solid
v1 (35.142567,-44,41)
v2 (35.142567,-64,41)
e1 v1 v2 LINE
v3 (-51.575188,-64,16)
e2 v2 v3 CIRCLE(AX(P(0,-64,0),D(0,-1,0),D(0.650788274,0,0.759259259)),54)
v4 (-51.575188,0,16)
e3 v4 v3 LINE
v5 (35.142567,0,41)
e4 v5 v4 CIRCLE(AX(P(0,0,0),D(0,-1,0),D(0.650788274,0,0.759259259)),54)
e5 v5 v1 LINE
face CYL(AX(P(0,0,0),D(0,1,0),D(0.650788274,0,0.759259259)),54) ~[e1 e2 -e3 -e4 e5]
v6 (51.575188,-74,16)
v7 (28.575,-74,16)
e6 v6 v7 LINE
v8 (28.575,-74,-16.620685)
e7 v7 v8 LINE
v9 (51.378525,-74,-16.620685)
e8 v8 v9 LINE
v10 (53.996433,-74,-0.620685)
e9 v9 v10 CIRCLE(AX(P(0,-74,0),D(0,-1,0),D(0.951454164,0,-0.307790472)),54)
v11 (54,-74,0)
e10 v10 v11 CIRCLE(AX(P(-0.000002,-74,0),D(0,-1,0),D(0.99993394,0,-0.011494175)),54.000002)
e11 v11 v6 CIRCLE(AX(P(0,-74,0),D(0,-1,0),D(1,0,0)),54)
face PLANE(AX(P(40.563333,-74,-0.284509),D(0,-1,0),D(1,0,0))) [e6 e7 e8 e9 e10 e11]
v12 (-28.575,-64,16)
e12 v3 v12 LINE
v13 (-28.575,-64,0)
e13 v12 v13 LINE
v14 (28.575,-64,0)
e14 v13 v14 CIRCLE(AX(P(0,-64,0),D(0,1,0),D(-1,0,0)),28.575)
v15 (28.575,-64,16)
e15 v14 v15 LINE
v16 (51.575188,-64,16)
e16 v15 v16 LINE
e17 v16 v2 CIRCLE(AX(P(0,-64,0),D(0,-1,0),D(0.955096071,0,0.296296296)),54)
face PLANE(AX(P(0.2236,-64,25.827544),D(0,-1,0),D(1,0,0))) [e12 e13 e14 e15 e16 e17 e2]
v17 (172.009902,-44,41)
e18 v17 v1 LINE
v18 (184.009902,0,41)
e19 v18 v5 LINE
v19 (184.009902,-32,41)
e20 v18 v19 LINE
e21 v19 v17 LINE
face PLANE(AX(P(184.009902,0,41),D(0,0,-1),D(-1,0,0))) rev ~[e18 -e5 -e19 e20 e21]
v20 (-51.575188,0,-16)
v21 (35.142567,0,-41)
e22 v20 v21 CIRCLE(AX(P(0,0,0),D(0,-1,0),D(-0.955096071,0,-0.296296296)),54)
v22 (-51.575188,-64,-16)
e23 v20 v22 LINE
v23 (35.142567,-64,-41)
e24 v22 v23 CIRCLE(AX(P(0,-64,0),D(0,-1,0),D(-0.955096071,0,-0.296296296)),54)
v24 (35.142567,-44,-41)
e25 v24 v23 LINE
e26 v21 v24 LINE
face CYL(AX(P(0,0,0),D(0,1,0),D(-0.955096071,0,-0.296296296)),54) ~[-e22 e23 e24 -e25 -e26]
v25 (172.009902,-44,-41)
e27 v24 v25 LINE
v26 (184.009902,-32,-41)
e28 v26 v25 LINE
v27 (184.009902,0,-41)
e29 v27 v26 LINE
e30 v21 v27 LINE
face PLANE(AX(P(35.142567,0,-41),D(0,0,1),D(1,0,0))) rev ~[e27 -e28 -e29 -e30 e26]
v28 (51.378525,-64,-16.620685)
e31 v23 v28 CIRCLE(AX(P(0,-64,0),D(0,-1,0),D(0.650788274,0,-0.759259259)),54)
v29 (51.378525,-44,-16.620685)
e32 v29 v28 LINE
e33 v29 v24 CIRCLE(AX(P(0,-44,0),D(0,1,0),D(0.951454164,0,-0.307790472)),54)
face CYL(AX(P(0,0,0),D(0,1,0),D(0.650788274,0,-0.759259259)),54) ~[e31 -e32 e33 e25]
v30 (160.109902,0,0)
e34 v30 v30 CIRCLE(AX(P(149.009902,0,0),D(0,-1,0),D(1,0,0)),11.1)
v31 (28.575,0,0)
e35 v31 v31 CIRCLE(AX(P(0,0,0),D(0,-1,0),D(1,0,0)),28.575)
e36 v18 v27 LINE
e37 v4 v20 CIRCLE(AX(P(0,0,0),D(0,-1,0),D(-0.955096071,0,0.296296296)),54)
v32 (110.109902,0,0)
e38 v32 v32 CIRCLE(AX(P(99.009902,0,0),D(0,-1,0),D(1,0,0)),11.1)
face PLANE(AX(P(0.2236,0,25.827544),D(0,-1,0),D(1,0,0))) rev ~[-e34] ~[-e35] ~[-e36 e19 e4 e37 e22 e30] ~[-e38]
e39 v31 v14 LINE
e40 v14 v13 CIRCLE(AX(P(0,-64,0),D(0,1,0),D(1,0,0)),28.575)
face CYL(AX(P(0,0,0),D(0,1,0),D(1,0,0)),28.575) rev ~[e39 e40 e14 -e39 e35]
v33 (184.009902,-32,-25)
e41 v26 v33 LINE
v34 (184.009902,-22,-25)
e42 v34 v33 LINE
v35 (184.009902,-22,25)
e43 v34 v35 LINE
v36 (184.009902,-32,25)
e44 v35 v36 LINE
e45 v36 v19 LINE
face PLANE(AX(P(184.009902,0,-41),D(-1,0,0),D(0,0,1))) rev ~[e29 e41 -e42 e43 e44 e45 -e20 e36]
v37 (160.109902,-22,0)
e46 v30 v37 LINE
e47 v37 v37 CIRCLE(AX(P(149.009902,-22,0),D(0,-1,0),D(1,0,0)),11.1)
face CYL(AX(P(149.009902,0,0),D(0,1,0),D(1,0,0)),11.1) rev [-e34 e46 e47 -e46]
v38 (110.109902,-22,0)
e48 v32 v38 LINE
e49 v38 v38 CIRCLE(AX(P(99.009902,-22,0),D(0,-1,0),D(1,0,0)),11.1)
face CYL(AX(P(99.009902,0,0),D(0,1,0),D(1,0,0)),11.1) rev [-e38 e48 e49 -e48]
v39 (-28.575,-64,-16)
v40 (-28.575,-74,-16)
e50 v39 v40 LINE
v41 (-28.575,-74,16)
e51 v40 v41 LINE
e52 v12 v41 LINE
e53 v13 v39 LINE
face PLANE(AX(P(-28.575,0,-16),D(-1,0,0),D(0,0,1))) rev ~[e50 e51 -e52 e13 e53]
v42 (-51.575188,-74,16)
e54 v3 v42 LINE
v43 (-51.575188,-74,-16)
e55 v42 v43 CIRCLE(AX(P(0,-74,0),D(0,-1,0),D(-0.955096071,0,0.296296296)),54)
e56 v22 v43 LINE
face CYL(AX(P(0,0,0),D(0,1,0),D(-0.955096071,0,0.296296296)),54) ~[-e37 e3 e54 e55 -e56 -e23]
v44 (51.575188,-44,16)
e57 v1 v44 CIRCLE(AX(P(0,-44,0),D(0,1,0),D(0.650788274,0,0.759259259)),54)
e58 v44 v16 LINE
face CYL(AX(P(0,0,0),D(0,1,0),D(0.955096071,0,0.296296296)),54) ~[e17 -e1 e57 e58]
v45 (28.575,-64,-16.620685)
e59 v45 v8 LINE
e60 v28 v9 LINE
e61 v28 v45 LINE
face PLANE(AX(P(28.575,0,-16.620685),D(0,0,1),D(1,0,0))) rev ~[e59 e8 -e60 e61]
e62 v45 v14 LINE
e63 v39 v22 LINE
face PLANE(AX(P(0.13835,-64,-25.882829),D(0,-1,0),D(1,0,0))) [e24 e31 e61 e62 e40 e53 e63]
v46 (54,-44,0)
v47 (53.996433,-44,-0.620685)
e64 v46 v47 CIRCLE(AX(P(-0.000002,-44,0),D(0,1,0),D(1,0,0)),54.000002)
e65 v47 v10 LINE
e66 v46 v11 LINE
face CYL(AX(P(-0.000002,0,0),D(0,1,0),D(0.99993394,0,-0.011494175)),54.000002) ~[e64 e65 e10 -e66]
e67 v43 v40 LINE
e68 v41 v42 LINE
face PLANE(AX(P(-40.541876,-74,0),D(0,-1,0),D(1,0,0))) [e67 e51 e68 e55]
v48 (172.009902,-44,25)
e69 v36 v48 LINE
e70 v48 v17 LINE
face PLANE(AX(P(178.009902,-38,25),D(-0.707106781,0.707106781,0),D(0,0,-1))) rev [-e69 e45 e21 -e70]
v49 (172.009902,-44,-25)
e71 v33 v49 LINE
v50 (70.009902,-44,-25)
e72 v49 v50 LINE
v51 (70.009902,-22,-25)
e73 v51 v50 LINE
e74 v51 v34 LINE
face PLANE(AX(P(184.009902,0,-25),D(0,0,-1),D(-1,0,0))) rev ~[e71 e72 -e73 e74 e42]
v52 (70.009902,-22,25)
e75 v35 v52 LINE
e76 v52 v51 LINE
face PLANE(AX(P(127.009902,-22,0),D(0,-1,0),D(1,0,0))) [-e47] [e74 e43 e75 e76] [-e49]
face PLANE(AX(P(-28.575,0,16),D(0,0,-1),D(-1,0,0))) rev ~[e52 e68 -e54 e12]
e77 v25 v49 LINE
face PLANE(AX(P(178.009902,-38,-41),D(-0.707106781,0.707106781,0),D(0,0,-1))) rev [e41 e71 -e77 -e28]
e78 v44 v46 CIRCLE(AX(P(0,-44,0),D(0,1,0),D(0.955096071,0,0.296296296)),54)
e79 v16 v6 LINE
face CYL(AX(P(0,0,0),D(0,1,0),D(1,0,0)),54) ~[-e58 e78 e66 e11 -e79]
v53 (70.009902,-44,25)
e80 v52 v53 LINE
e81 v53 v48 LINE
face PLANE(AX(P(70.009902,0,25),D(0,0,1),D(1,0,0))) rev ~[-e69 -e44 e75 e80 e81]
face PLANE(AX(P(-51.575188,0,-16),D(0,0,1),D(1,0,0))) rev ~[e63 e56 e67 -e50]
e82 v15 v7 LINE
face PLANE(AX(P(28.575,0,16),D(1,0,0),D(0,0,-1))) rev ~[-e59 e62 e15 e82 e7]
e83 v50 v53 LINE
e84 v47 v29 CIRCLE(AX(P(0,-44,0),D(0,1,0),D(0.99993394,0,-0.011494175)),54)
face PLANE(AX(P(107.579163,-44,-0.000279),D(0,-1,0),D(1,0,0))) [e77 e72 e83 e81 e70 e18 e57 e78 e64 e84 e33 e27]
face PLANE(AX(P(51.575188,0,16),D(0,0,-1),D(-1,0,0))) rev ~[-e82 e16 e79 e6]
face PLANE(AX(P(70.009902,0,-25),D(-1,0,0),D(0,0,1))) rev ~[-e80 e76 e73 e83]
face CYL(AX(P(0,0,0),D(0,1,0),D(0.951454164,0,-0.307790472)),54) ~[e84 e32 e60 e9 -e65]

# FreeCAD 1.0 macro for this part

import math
import FreeCAD as App
import Part
import Sketcher
from FreeCAD import Vector


def edges_at(feature, points):
    """Names of the edges that pass closest to the given points."""
    edges = feature.Shape.Edges
    near = lambda p: min(range(len(edges)), key=lambda i: edges[i].distToShape(Part.Vertex(*p))[0])
    return sorted({f"Edge{near(p) + 1}" for p in points})

doc = App.newDocument("Part")
body = doc.addObject("PartDesign::Body", "Body")

# Sketch on XZ plane
sketch1 = body.newObject("Sketcher::SketchObject", "Sketch")
sketch1.AttachmentSupport = (doc.getObject("XZ_Plane"), [""])
sketch1.MapMode = "FlatFace"
sketch1.addGeometry([
    Part.LineSegment(Vector(184, -25, 0), Vector(184, 25, 0)),  # 0
    Part.LineSegment(Vector(184, 25, 0), Vector(70, 25, 0)),  # 1
    Part.LineSegment(Vector(70, 25, 0), Vector(70, -25, 0)),  # 2
    Part.LineSegment(Vector(70, -25, 0), Vector(184, -25, 0)),  # 3
    Part.Circle(Vector(99, 0, 0), Vector(0, 0, 1), 11),  # 4
    Part.Circle(Vector(149, 0, 0), Vector(0, 0, 1), 11),  # 5
], False)
sketch1.addConstraint([
    Sketcher.Constraint("Coincident", 0, 2, 1, 1),
    Sketcher.Constraint("Coincident", 1, 2, 2, 1),
    Sketcher.Constraint("Coincident", 2, 2, 3, 1),
    Sketcher.Constraint("Coincident", 3, 2, 0, 1),
    Sketcher.Constraint("Vertical", 0),
    Sketcher.Constraint("Horizontal", 1),
    Sketcher.Constraint("Vertical", 2),
    Sketcher.Constraint("Horizontal", 3),
    Sketcher.Constraint("Equal", 4, 5),
    Sketcher.Constraint("PointOnObject", 4, 3, -1),
    Sketcher.Constraint("PointOnObject", 5, 3, -1),
    Sketcher.Constraint("Diameter", 4, 22.2),
    Sketcher.Constraint("DistanceX", 1, 2, 1, 1, 114.0),
    Sketcher.Constraint("DistanceY", 0, 1, 0, 2, 50.0),
    Sketcher.Constraint("DistanceY", -1, 1, 0, 2, 25.0),
    Sketcher.Constraint("DistanceX", 4, 3, 5, 3, 50.0),
    Sketcher.Constraint("DistanceX", 5, 3, 0, 2, 35.0),
    Sketcher.Constraint("DistanceX", -1, 1, 4, 3, 99.009902),
])
pad1 = body.newObject("PartDesign::Pad", "Pad")
pad1.Profile = sketch1
pad1.Length = 22

# Sketch on XZ plane
sketch2 = body.newObject("Sketcher::SketchObject", "Sketch001")
sketch2.AttachmentSupport = (doc.getObject("XZ_Plane"), [""])
sketch2.MapMode = "FlatFace"
sketch2.addGeometry([
    Part.ArcOfCircle(Part.Circle(Vector(0, 0, 0), Vector(0, 0, 1), 54), math.radians(0), math.radians(17.24)),  # 0
    Part.ArcOfCircle(Part.Circle(Vector(0, 0, 0), Vector(0, 0, 1), 54), math.radians(-0.66), math.radians(0)),  # 1
    Part.ArcOfCircle(Part.Circle(Vector(0, 0, 0), Vector(0, 0, 1), 54), math.radians(-17.93), math.radians(-0.66)),  # 2
    Part.ArcOfCircle(Part.Circle(Vector(0, 0, 0), Vector(0, 0, 1), 54), math.radians(-49), math.radians(-18)),  # 3
    Part.LineSegment(Vector(35.1, -41, 0), Vector(184, -41, 0)),  # 4
    Part.LineSegment(Vector(184, -41, 0), Vector(184, -25, 0)),  # 5
    Part.LineSegment(Vector(184, -25, 0), Vector(70, -25, 0)),  # 6
    Part.LineSegment(Vector(70, -25, 0), Vector(70, 25, 0)),  # 7
    Part.LineSegment(Vector(70, 25, 0), Vector(184, 25, 0)),  # 8
    Part.LineSegment(Vector(184, 25, 0), Vector(184, 41, 0)),  # 9
    Part.LineSegment(Vector(184, 41, 0), Vector(35.1, 41, 0)),  # 10
    Part.ArcOfCircle(Part.Circle(Vector(0, 0, 0), Vector(0, 0, 1), 54), math.radians(17), math.radians(49)),  # 11
], False)
sketch2.addConstraint([
    Sketcher.Constraint("Tangent", 0, 1, 1, 2),
    Sketcher.Constraint("Tangent", 1, 1, 2, 2),
    Sketcher.Constraint("Tangent", 2, 1, 3, 2),
    Sketcher.Constraint("Coincident", 3, 1, 4, 1),
    Sketcher.Constraint("Coincident", 4, 2, 5, 1),
    Sketcher.Constraint("Coincident", 5, 2, 6, 1),
    Sketcher.Constraint("Coincident", 6, 2, 7, 1),
    Sketcher.Constraint("Coincident", 7, 2, 8, 1),
    Sketcher.Constraint("Coincident", 8, 2, 9, 1),
    Sketcher.Constraint("Coincident", 9, 2, 10, 1),
    Sketcher.Constraint("Coincident", 10, 2, 11, 2),
    Sketcher.Constraint("Tangent", 11, 1, 0, 2),
    Sketcher.Constraint("Horizontal", 4),
    Sketcher.Constraint("Vertical", 5),
    Sketcher.Constraint("Horizontal", 6),
    Sketcher.Constraint("Vertical", 7),
    Sketcher.Constraint("Horizontal", 8),
    Sketcher.Constraint("Vertical", 9),
    Sketcher.Constraint("Horizontal", 10),
    Sketcher.Constraint("Coincident", 0, 3, -1, 1),
    Sketcher.Constraint("Coincident", 2, 3, -1, 1),
    Sketcher.Constraint("Equal", 2, 3),
    Sketcher.Constraint("Equal", 3, 11),
    Sketcher.Constraint("Symmetric", 5, 2, 8, 2, -1),
    Sketcher.Constraint("PointOnObject", 0, 1, -1),
    Sketcher.Constraint("Vertical", 3, 1, 10, 2),
    Sketcher.Constraint("Radius", 0, 54.0),
    Sketcher.Constraint("DistanceX", 6, 2, 6, 1, 114.0),
    Sketcher.Constraint("DistanceY", 5, 1, 5, 2, 16.0),
    Sketcher.Constraint("DistanceY", 7, 1, 7, 2, 50.0),
    Sketcher.Constraint("DistanceY", -1, 1, 11, 1, 16.0),
    Sketcher.Constraint("DistanceY", 2, 1, 1, 1, 16.0),
    Sketcher.Constraint("DistanceX", 4, 1, 4, 2, 148.867335),
    Sketcher.Constraint("DistanceX", 3, 1, 2, 1, 16.235958),
])
pad2 = body.newObject("PartDesign::Pad", "Pad001")
pad2.Profile = sketch2
pad2.Length = 44

# Sketch on XZ plane
sketch3 = body.newObject("Sketcher::SketchObject", "Sketch002")
sketch3.AttachmentSupport = (doc.getObject("XZ_Plane"), [""])
sketch3.MapMode = "FlatFace"
sketch3.addGeometry([
    Part.LineSegment(Vector(29, 16, 0), Vector(52, 16, 0)),  # 0
    Part.ArcOfCircle(Part.Circle(Vector(0, 0, 0), Vector(0, 0, 1), 54), math.radians(17), math.radians(49)),  # 1
    Part.ArcOfCircle(Part.Circle(Vector(0, 0, 0), Vector(0, 0, 1), 54), math.radians(49), math.radians(163)),  # 2
    Part.LineSegment(Vector(-52, 16, 0), Vector(-29, 16, 0)),  # 3
    Part.LineSegment(Vector(-29, 16, 0), Vector(-29, 0, 0)),  # 4
    Part.ArcOfCircle(Part.Circle(Vector(0, 0, 0), Vector(0, 0, 1), 29), math.radians(0), math.radians(180)),  # 5
    Part.LineSegment(Vector(29, 0, 0), Vector(29, 16, 0)),  # 6
    Part.ArcOfCircle(Part.Circle(Vector(0, 0, 0), Vector(0, 0, 1), 54), math.radians(-49), math.radians(-18)),  # 7
    Part.LineSegment(Vector(51, -17, 0), Vector(29, -17, 0)),  # 8
    Part.LineSegment(Vector(29, -17, 0), Vector(29, 0, 0)),  # 9
    Part.ArcOfCircle(Part.Circle(Vector(0, 0, 0), Vector(0, 0, 1), 29), math.radians(180), math.radians(360)),  # 10
    Part.LineSegment(Vector(-29, 0, 0), Vector(-29, -16, 0)),  # 11
    Part.LineSegment(Vector(-29, -16, 0), Vector(-52, -16, 0)),  # 12
    Part.ArcOfCircle(Part.Circle(Vector(0, 0, 0), Vector(0, 0, 1), 54), math.radians(-163), math.radians(-49)),  # 13
], False)
sketch3.addConstraint([
    Sketcher.Constraint("Coincident", 0, 2, 1, 1),
    Sketcher.Constraint("Tangent", 1, 2, 2, 1),
    Sketcher.Constraint("Coincident", 2, 2, 3, 1),
    Sketcher.Constraint("Coincident", 3, 2, 4, 1),
    Sketcher.Constraint("Tangent", 4, 2, 5, 2),
    Sketcher.Constraint("Tangent", 5, 1, 6, 1),
    Sketcher.Constraint("Coincident", 6, 2, 0, 1),
    Sketcher.Constraint("Coincident", 7, 2, 8, 1),
    Sketcher.Constraint("Coincident", 8, 2, 9, 1),
    Sketcher.Constraint("Tangent", 9, 2, 10, 2),
    Sketcher.Constraint("Tangent", 10, 1, 11, 1),
    Sketcher.Constraint("Coincident", 11, 2, 12, 1),
    Sketcher.Constraint("Coincident", 12, 2, 13, 1),
    Sketcher.Constraint("Tangent", 13, 2, 7, 1),
    Sketcher.Constraint("Horizontal", 0),
    Sketcher.Constraint("Horizontal", 3),
    Sketcher.Constraint("Vertical", 4),
    Sketcher.Constraint("Vertical", 6),
    Sketcher.Constraint("Horizontal", 8),
    Sketcher.Constraint("Vertical", 9),
    Sketcher.Constraint("Vertical", 11),
    Sketcher.Constraint("Horizontal", 12),
    Sketcher.Constraint("Coincident", 1, 3, -1, 1),
    Sketcher.Constraint("Coincident", 5, 3, -1, 1),
    Sketcher.Constraint("Coincident", 7, 3, -1, 1),
    Sketcher.Constraint("Coincident", 10, 3, -1, 1),
    Sketcher.Constraint("Equal", 1, 2),
    Sketcher.Constraint("Equal", 2, 7),
    Sketcher.Constraint("Equal", 5, 10),
    Sketcher.Constraint("Equal", 7, 13),
    Sketcher.Constraint("Horizontal", 0, 2, 2, 2),
    Sketcher.Constraint("Vertical", 2, 2, 12, 2),
    Sketcher.Constraint("Vertical", 1, 2, 13, 2),
    Sketcher.Constraint("Radius", 1, 54.0),
    Sketcher.Constraint("DistanceY", 4, 2, 4, 1, 16.0),
    Sketcher.Constraint("DistanceY", -1, 1, 1, 2, 41.0),
    Sketcher.Constraint("Radius", 5, 28.575),
    Sketcher.Constraint("DistanceX", 8, 2, 8, 1, 22.803525),
])
pad3 = body.newObject("PartDesign::Pad", "Pad002")
pad3.Profile = sketch3
pad3.Length = 64

# Sketch on XZ plane
sketch4 = body.newObject("Sketcher::SketchObject", "Sketch003")
sketch4.AttachmentSupport = (doc.getObject("XZ_Plane"), [""])
sketch4.MapMode = "FlatFace"
sketch4.addGeometry([
    Part.ArcOfCircle(Part.Circle(Vector(0, 0, 0), Vector(0, 0, 1), 54), math.radians(-0.66), math.radians(0)),  # 0
    Part.ArcOfCircle(Part.Circle(Vector(0, 0, 0), Vector(0, 0, 1), 54), math.radians(0), math.radians(17.24)),  # 1
    Part.LineSegment(Vector(51.6, 16, 0), Vector(28.6, 16, 0)),  # 2
    Part.LineSegment(Vector(28.6, 16, 0), Vector(28.6, -16.6, 0)),  # 3
    Part.LineSegment(Vector(28.6, -16.6, 0), Vector(51.4, -16.6, 0)),  # 4
    Part.ArcOfCircle(Part.Circle(Vector(0, 0, 0), Vector(0, 0, 1), 54), math.radians(-17.93), math.radians(-0.66)),  # 5
    Part.LineSegment(Vector(-28.6, 16, 0), Vector(-51.6, 16, 0)),  # 6
    Part.ArcOfCircle(Part.Circle(Vector(0, 0, 0), Vector(0, 0, 1), 54), math.radians(163), math.radians(197)),  # 7
    Part.LineSegment(Vector(-51.6, -16, 0), Vector(-28.6, -16, 0)),  # 8
    Part.LineSegment(Vector(-28.6, -16, 0), Vector(-28.6, 16, 0)),  # 9
], False)
sketch4.addConstraint([
    Sketcher.Constraint("Tangent", 0, 2, 1, 1),
    Sketcher.Constraint("Coincident", 1, 2, 2, 1),
    Sketcher.Constraint("Coincident", 2, 2, 3, 1),
    Sketcher.Constraint("Coincident", 3, 2, 4, 1),
    Sketcher.Constraint("Coincident", 4, 2, 5, 1),
    Sketcher.Constraint("Tangent", 5, 2, 0, 1),
    Sketcher.Constraint("Coincident", 6, 2, 7, 1),
    Sketcher.Constraint("Coincident", 7, 2, 8, 1),
    Sketcher.Constraint("Coincident", 8, 2, 9, 1),
    Sketcher.Constraint("Coincident", 9, 2, 6, 1),
    Sketcher.Constraint("Horizontal", 2),
    Sketcher.Constraint("Vertical", 3),
    Sketcher.Constraint("Horizontal", 4),
    Sketcher.Constraint("Horizontal", 6),
    Sketcher.Constraint("Horizontal", 8),
    Sketcher.Constraint("Vertical", 9),
    Sketcher.Constraint("Coincident", 0, 3, -1, 1),
    Sketcher.Constraint("Coincident", 7, 3, -1, 1),
    Sketcher.Constraint("Equal", 0, 1),
    Sketcher.Constraint("Equal", 1, 5),
    Sketcher.Constraint("Equal", 5, 7),
    Sketcher.Constraint("Symmetric", 2, 2, 8, 2, -1, 1),
    Sketcher.Constraint("PointOnObject", 0, 2, -1),
    Sketcher.Constraint("Horizontal", 2, 2, 6, 2),
    Sketcher.Constraint("Radius", 0, 54.000002),
    Sketcher.Constraint("DistanceY", 9, 1, 9, 2, 32.0),
    Sketcher.Constraint("DistanceY", 4, 2, 5, 2, 16.0),
    Sketcher.Constraint("DistanceX", -1, 1, 2, 2, 28.575),
    Sketcher.Constraint("DistanceX", 4, 1, 4, 2, 22.803525),
])
pad4 = body.newObject("PartDesign::Pad", "Pad003")
pad4.Profile = sketch4
pad4.Length = 74
doc.recompute()

chamfer = body.newObject("PartDesign::Chamfer", "Chamfer")
chamfer.Base = (pad4, edges_at(pad4, [(184.01, -44, 33), (184.01, -44, -33)]))
chamfer.Size = 12

doc.recompute()
